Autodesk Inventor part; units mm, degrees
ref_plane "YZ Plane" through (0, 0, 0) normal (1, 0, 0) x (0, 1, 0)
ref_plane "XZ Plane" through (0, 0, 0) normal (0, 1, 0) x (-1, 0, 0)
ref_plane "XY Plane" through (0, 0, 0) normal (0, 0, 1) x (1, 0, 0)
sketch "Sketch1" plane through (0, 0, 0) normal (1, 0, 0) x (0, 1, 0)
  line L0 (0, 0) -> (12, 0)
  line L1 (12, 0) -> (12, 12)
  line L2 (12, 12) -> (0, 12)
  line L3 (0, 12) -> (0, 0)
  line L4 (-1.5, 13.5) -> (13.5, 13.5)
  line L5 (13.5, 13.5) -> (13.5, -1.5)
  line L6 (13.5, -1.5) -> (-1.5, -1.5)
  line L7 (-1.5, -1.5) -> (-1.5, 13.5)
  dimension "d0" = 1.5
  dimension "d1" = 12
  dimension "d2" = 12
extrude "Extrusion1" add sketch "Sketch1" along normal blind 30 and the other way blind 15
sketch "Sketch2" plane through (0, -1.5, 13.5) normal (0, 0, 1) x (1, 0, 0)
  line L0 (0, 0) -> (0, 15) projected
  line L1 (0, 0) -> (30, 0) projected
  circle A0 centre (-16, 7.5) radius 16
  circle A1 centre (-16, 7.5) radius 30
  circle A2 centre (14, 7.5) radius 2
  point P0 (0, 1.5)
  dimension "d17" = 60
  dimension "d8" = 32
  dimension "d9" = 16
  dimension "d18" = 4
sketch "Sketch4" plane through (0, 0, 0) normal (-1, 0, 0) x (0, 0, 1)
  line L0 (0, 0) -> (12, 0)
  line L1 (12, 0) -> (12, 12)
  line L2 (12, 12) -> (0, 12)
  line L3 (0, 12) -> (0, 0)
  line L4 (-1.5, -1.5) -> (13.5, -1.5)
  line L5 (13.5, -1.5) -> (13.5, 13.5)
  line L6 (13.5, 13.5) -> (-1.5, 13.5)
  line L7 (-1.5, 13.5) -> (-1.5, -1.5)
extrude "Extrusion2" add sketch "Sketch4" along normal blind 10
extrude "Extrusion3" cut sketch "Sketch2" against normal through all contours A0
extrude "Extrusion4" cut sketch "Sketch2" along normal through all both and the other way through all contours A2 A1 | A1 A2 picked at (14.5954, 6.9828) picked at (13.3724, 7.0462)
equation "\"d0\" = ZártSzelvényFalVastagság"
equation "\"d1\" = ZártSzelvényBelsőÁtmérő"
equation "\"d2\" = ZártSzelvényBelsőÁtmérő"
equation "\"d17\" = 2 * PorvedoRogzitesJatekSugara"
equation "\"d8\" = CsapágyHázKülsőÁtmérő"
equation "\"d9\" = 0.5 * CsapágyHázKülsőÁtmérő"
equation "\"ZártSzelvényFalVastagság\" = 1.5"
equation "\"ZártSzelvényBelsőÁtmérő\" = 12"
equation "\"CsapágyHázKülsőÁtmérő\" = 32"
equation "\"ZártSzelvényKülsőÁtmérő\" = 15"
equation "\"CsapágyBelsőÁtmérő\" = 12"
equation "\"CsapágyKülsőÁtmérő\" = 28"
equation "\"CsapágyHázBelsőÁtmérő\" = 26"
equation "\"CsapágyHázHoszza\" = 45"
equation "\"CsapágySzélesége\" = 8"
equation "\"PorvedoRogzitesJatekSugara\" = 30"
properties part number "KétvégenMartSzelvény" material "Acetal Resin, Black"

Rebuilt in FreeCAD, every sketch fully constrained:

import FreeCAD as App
import Part
import Sketcher

doc = App.newDocument("Part")
params = doc.addObject("Spreadsheet::Sheet", "Params")
for row, (alias, value) in enumerate([
    ("sketch1_width", "12 mm"),
    ("pad1_length", "30 mm"),
    ("pad1_length2", "15 mm"),
    ("sketch2_width", "15 mm"),
    ("sketch2_width2", "12 mm"),
    ("pad2_length", "10 mm"),
    ("sketch3_diameter", "32 mm"),
    ("sketch4_diameter", "4 mm"),
], start=1):
    params.set(f"A{row}", alias)
    params.set(f"B{row}", "=" + value)
    params.setAlias(f"B{row}", alias)

body = doc.addObject("PartDesign::Body", "Body")

# Sketch on YZ plane
sketch1 = body.newObject("Sketcher::SketchObject", "Sketch")
sketch1.AttachmentSupport = (doc.getObject("YZ_Plane"), [""])
sketch1.MapMode = "FlatFace"
sketch1.addGeometry([
    Part.LineSegment(App.Vector(13.5, 13.5, 0), App.Vector(-1.5, 13.5, 0)),  # 0
    Part.LineSegment(App.Vector(-1.5, 13.5, 0), App.Vector(-1.5, -1.5, 0)),  # 1
    Part.LineSegment(App.Vector(-1.5, -1.5, 0), App.Vector(13.5, -1.5, 0)),  # 2
    Part.LineSegment(App.Vector(13.5, -1.5, 0), App.Vector(13.5, 13.5, 0)),  # 3
    Part.LineSegment(App.Vector(12, 0, 0), App.Vector(0, 0, 0)),  # 4
    Part.LineSegment(App.Vector(0, 0, 0), App.Vector(0, 12, 0)),  # 5
    Part.LineSegment(App.Vector(0, 12, 0), App.Vector(12, 12, 0)),  # 6
    Part.LineSegment(App.Vector(12, 12, 0), App.Vector(12, 0, 0)),  # 7
], False)
sketch1.addConstraint([
    Sketcher.Constraint("Coincident", 0, 2, 1, 1),
    Sketcher.Constraint("Coincident", 1, 2, 2, 1),
    Sketcher.Constraint("Coincident", 2, 2, 3, 1),
    Sketcher.Constraint("Coincident", 3, 2, 0, 1),
    Sketcher.Constraint("Coincident", 4, 2, 5, 1),
    Sketcher.Constraint("Coincident", 5, 2, 6, 1),
    Sketcher.Constraint("Coincident", 6, 2, 7, 1),
    Sketcher.Constraint("Coincident", 7, 2, 4, 1),
    Sketcher.Constraint("Horizontal", 0),
    Sketcher.Constraint("Vertical", 1),
    Sketcher.Constraint("Horizontal", 2),
    Sketcher.Constraint("Vertical", 3),
    Sketcher.Constraint("Horizontal", 4),
    Sketcher.Constraint("Vertical", 5),
    Sketcher.Constraint("Horizontal", 6),
    Sketcher.Constraint("Vertical", 7),
    Sketcher.Constraint("Coincident", 4, 2, -1, 1),
    Sketcher.Constraint("Equal", 2, 1),
    Sketcher.Constraint("Equal", 6, 5),
    Sketcher.Constraint("DistanceX", 4, 2, 4, 1, 12.0),
    Sketcher.Constraint("DistanceX", 0, 2, -1, 1, 1.5),
    Sketcher.Constraint("DistanceY", 1, 2, -1, 1, 1.5),
    Sketcher.Constraint("DistanceY", 5, 2, 0, 2, 1.5),
])
sketch1.setExpression("Constraints[19]", "Params.sketch1_width")
pad1 = body.newObject("PartDesign::Pad", "Pad")
pad1.Profile = sketch1
pad1.Type = "TwoLengths"
pad1.setExpression("Length", "Params.pad1_length")
pad1.setExpression("Length2", "Params.pad1_length2")

# Sketch on YZ plane
sketch2 = body.newObject("Sketcher::SketchObject", "Sketch001")
sketch2.AttachmentSupport = (doc.getObject("YZ_Plane"), [""])
sketch2.MapMode = "FlatFace"
sketch2.addGeometry([
    Part.LineSegment(App.Vector(13.5, -1.5, 0), App.Vector(-1.5, -1.5, 0)),  # 0
    Part.LineSegment(App.Vector(-1.5, -1.5, 0), App.Vector(-1.5, 13.5, 0)),  # 1
    Part.LineSegment(App.Vector(-1.5, 13.5, 0), App.Vector(13.5, 13.5, 0)),  # 2
    Part.LineSegment(App.Vector(13.5, 13.5, 0), App.Vector(13.5, -1.5, 0)),  # 3
    Part.LineSegment(App.Vector(0, 12, 0), App.Vector(0, 0, 0)),  # 4
    Part.LineSegment(App.Vector(0, 0, 0), App.Vector(12, 0, 0)),  # 5
    Part.LineSegment(App.Vector(12, 0, 0), App.Vector(12, 12, 0)),  # 6
    Part.LineSegment(App.Vector(12, 12, 0), App.Vector(0, 12, 0)),  # 7
], False)
sketch2.addConstraint([
    Sketcher.Constraint("Coincident", 0, 2, 1, 1),
    Sketcher.Constraint("Coincident", 1, 2, 2, 1),
    Sketcher.Constraint("Coincident", 2, 2, 3, 1),
    Sketcher.Constraint("Coincident", 3, 2, 0, 1),
    Sketcher.Constraint("Coincident", 4, 2, 5, 1),
    Sketcher.Constraint("Coincident", 5, 2, 6, 1),
    Sketcher.Constraint("Coincident", 6, 2, 7, 1),
    Sketcher.Constraint("Coincident", 7, 2, 4, 1),
    Sketcher.Constraint("Horizontal", 0),
    Sketcher.Constraint("Vertical", 1),
    Sketcher.Constraint("Horizontal", 2),
    Sketcher.Constraint("Vertical", 3),
    Sketcher.Constraint("Vertical", 4),
    Sketcher.Constraint("Horizontal", 5),
    Sketcher.Constraint("Vertical", 6),
    Sketcher.Constraint("Horizontal", 7),
    Sketcher.Constraint("Coincident", 4, 2, -1, 1),
    Sketcher.Constraint("Equal", 2, 1),
    Sketcher.Constraint("Equal", 7, 4),
    Sketcher.Constraint("DistanceX", 0, 2, 0, 1, 15.0),
    Sketcher.Constraint("DistanceX", 5, 1, 5, 2, 12.0),
    Sketcher.Constraint("DistanceX", 0, 2, -1, 1, 1.5),
    Sketcher.Constraint("DistanceY", 0, 2, -1, 1, 1.5),
])
sketch2.setExpression("Constraints[19]", "Params.sketch2_width")
sketch2.setExpression("Constraints[20]", "Params.sketch2_width2")
pad2 = body.newObject("PartDesign::Pad", "Pad001")
pad2.Profile = sketch2
pad2.setExpression("Length", "Params.pad2_length")
pad2.Reversed = True

# Sketch on XY plane
sketch3 = body.newObject("Sketcher::SketchObject", "Sketch002")
sketch3.AttachmentSupport = (doc.getObject("XY_Plane"), [""])
sketch3.MapMode = "FlatFace"
sketch3.AttachmentOffset = App.Placement(App.Vector(0, 0, 13.5), App.Rotation())
sketch3.addGeometry(Part.Circle(App.Vector(-16, 6, 0), App.Vector(0, 0, 1), 16), False)
sketch3.addConstraint([
    Sketcher.Constraint("Diameter", 0, 32.0),
    Sketcher.Constraint("DistanceX", 0, 3, -1, 1, 16.0),
    Sketcher.Constraint("DistanceY", -1, 1, 0, 3, 6.0),
])
sketch3.setExpression("Constraints[0]", "Params.sketch3_diameter")
pocket1 = body.newObject("PartDesign::Pocket", "Pocket")
pocket1.Profile = sketch3
pocket1.Type = "ThroughAll"

# Sketch on XY plane
sketch4 = body.newObject("Sketcher::SketchObject", "Sketch003")
sketch4.AttachmentSupport = (doc.getObject("XY_Plane"), [""])
sketch4.MapMode = "FlatFace"
sketch4.AttachmentOffset = App.Placement(App.Vector(0, 0, 13.5), App.Rotation())
sketch4.addGeometry(Part.Circle(App.Vector(14, 6, 0), App.Vector(0, 0, 1), 2), False)
sketch4.addConstraint([
    Sketcher.Constraint("Diameter", 0, 4.0),
    Sketcher.Constraint("DistanceX", -1, 1, 0, 3, 14.0),
    Sketcher.Constraint("DistanceY", -1, 1, 0, 3, 6.0),
])
sketch4.setExpression("Constraints[0]", "Params.sketch4_diameter")
pocket2 = body.newObject("PartDesign::Pocket", "Pocket001")
pocket2.Profile = sketch4
pocket2.Type = "ThroughAll"
pocket2.Midplane = True

doc.recompute()
